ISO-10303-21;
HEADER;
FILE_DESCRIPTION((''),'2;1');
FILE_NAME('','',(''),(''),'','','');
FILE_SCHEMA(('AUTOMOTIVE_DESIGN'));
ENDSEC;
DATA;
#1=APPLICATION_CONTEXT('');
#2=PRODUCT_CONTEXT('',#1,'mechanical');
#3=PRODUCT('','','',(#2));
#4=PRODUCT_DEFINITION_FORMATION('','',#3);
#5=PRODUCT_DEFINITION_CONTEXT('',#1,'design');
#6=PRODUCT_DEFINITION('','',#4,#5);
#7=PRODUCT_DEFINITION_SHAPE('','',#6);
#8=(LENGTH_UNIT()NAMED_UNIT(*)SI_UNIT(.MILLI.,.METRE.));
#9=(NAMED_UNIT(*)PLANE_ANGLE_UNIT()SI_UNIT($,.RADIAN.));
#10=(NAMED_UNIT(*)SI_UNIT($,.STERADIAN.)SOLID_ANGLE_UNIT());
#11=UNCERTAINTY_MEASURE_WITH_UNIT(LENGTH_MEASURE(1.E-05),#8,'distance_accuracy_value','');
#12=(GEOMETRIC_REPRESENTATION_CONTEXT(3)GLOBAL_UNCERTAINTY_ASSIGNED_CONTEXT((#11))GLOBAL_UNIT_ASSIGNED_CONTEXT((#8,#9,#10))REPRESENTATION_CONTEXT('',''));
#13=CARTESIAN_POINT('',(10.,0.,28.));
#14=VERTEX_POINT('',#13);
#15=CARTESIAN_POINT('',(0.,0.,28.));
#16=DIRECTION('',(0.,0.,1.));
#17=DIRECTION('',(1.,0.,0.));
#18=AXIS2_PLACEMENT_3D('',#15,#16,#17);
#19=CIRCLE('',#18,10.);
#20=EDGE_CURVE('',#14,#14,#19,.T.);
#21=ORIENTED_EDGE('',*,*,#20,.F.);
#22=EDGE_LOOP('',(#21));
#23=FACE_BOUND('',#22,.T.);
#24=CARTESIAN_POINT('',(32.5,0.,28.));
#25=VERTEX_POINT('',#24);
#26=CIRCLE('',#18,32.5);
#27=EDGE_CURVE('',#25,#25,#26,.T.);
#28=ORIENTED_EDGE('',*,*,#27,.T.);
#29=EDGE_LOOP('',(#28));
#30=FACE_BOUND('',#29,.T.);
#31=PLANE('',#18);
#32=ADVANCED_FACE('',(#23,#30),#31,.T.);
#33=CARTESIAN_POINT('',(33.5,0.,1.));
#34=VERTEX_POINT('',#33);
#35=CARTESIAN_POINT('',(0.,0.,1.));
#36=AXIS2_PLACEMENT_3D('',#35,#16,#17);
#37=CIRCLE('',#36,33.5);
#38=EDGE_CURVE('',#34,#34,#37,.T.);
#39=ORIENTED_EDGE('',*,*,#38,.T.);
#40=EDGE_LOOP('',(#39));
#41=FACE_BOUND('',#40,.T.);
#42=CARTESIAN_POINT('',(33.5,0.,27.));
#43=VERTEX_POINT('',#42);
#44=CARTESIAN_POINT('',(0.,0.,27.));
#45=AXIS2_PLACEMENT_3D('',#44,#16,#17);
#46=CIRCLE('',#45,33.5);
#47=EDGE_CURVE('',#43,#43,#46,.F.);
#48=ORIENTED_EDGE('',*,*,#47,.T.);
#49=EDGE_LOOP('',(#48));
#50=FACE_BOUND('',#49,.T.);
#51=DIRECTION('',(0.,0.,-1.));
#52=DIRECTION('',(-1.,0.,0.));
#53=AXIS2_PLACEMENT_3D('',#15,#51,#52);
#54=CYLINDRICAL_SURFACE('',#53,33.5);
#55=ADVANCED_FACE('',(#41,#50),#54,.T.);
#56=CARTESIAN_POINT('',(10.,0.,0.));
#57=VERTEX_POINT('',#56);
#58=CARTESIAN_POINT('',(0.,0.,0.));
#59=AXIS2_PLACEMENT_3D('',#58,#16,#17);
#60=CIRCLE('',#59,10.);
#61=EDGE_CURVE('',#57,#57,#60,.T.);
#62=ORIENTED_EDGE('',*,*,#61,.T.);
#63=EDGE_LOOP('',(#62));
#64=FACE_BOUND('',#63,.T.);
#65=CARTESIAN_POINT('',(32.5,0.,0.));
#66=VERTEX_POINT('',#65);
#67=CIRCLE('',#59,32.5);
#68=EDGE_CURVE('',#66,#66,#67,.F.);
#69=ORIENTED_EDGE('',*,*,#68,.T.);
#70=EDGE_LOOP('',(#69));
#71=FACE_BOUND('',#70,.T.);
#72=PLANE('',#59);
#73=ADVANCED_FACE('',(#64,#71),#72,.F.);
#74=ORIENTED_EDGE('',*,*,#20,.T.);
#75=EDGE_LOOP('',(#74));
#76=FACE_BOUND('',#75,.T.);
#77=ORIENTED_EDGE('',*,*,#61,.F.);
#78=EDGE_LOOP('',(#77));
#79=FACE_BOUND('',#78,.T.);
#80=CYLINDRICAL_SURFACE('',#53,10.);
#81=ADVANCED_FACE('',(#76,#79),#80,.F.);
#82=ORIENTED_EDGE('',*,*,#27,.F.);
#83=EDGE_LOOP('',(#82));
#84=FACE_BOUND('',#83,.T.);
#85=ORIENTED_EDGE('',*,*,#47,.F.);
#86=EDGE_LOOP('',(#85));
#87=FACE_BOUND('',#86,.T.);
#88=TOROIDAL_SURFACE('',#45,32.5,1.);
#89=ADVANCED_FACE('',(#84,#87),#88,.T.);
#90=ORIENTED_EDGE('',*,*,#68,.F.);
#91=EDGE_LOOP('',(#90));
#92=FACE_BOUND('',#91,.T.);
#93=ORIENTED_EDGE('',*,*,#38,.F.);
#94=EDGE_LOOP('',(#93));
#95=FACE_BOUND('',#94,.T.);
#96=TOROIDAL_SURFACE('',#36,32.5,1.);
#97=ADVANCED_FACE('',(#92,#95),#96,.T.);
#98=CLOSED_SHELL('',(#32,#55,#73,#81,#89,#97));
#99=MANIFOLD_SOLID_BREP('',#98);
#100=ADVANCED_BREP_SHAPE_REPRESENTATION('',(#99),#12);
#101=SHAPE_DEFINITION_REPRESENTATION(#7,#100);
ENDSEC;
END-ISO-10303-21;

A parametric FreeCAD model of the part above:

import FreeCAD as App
import Part
import Sketcher


def edges_at(feature, points):
    """Names of the edges that pass closest to the given points."""
    edges = feature.Shape.Edges
    near = lambda p: min(range(len(edges)), key=lambda i: edges[i].distToShape(Part.Vertex(*p))[0])
    return sorted({f"Edge{near(p) + 1}" for p in points})

doc = App.newDocument("Part")
body = doc.addObject("PartDesign::Body", "Body")

# Sketch on XY plane
sketch1 = doc.addObject("Sketcher::SketchObject", "Sketch")
body.addObject(sketch1)
sketch1.AttachmentSupport = (doc.XY_Plane, [""])
sketch1.MapMode = "FlatFace"
sketch1.addGeometry([
    Part.Circle(App.Vector(0, 0, 0), App.Vector(0, 0, 1), 34),
    Part.Circle(App.Vector(0, 0, 0), App.Vector(0, 0, 1), 10),
], False)
sketch1.addConstraint([
    Sketcher.Constraint("Coincident", 0, 3, -1, 1),
    Sketcher.Constraint("Coincident", 1, 3, -1, 1),
    Sketcher.Constraint("Diameter", 0, 67.0),
    Sketcher.Constraint("Diameter", 1, 20.0),
])
pad1 = doc.addObject("PartDesign::Pad", "Pad")
body.addObject(pad1)
pad1.Profile = sketch1
pad1.Length = 28
doc.recompute()

fillet = doc.addObject("PartDesign::Fillet", "Fillet")
body.addObject(fillet)
fillet.Base = (pad1, edges_at(pad1, [(-33.5, 0, 0), (-33.5, 0, 28)]))
fillet.Radius = 1

doc.recompute()
